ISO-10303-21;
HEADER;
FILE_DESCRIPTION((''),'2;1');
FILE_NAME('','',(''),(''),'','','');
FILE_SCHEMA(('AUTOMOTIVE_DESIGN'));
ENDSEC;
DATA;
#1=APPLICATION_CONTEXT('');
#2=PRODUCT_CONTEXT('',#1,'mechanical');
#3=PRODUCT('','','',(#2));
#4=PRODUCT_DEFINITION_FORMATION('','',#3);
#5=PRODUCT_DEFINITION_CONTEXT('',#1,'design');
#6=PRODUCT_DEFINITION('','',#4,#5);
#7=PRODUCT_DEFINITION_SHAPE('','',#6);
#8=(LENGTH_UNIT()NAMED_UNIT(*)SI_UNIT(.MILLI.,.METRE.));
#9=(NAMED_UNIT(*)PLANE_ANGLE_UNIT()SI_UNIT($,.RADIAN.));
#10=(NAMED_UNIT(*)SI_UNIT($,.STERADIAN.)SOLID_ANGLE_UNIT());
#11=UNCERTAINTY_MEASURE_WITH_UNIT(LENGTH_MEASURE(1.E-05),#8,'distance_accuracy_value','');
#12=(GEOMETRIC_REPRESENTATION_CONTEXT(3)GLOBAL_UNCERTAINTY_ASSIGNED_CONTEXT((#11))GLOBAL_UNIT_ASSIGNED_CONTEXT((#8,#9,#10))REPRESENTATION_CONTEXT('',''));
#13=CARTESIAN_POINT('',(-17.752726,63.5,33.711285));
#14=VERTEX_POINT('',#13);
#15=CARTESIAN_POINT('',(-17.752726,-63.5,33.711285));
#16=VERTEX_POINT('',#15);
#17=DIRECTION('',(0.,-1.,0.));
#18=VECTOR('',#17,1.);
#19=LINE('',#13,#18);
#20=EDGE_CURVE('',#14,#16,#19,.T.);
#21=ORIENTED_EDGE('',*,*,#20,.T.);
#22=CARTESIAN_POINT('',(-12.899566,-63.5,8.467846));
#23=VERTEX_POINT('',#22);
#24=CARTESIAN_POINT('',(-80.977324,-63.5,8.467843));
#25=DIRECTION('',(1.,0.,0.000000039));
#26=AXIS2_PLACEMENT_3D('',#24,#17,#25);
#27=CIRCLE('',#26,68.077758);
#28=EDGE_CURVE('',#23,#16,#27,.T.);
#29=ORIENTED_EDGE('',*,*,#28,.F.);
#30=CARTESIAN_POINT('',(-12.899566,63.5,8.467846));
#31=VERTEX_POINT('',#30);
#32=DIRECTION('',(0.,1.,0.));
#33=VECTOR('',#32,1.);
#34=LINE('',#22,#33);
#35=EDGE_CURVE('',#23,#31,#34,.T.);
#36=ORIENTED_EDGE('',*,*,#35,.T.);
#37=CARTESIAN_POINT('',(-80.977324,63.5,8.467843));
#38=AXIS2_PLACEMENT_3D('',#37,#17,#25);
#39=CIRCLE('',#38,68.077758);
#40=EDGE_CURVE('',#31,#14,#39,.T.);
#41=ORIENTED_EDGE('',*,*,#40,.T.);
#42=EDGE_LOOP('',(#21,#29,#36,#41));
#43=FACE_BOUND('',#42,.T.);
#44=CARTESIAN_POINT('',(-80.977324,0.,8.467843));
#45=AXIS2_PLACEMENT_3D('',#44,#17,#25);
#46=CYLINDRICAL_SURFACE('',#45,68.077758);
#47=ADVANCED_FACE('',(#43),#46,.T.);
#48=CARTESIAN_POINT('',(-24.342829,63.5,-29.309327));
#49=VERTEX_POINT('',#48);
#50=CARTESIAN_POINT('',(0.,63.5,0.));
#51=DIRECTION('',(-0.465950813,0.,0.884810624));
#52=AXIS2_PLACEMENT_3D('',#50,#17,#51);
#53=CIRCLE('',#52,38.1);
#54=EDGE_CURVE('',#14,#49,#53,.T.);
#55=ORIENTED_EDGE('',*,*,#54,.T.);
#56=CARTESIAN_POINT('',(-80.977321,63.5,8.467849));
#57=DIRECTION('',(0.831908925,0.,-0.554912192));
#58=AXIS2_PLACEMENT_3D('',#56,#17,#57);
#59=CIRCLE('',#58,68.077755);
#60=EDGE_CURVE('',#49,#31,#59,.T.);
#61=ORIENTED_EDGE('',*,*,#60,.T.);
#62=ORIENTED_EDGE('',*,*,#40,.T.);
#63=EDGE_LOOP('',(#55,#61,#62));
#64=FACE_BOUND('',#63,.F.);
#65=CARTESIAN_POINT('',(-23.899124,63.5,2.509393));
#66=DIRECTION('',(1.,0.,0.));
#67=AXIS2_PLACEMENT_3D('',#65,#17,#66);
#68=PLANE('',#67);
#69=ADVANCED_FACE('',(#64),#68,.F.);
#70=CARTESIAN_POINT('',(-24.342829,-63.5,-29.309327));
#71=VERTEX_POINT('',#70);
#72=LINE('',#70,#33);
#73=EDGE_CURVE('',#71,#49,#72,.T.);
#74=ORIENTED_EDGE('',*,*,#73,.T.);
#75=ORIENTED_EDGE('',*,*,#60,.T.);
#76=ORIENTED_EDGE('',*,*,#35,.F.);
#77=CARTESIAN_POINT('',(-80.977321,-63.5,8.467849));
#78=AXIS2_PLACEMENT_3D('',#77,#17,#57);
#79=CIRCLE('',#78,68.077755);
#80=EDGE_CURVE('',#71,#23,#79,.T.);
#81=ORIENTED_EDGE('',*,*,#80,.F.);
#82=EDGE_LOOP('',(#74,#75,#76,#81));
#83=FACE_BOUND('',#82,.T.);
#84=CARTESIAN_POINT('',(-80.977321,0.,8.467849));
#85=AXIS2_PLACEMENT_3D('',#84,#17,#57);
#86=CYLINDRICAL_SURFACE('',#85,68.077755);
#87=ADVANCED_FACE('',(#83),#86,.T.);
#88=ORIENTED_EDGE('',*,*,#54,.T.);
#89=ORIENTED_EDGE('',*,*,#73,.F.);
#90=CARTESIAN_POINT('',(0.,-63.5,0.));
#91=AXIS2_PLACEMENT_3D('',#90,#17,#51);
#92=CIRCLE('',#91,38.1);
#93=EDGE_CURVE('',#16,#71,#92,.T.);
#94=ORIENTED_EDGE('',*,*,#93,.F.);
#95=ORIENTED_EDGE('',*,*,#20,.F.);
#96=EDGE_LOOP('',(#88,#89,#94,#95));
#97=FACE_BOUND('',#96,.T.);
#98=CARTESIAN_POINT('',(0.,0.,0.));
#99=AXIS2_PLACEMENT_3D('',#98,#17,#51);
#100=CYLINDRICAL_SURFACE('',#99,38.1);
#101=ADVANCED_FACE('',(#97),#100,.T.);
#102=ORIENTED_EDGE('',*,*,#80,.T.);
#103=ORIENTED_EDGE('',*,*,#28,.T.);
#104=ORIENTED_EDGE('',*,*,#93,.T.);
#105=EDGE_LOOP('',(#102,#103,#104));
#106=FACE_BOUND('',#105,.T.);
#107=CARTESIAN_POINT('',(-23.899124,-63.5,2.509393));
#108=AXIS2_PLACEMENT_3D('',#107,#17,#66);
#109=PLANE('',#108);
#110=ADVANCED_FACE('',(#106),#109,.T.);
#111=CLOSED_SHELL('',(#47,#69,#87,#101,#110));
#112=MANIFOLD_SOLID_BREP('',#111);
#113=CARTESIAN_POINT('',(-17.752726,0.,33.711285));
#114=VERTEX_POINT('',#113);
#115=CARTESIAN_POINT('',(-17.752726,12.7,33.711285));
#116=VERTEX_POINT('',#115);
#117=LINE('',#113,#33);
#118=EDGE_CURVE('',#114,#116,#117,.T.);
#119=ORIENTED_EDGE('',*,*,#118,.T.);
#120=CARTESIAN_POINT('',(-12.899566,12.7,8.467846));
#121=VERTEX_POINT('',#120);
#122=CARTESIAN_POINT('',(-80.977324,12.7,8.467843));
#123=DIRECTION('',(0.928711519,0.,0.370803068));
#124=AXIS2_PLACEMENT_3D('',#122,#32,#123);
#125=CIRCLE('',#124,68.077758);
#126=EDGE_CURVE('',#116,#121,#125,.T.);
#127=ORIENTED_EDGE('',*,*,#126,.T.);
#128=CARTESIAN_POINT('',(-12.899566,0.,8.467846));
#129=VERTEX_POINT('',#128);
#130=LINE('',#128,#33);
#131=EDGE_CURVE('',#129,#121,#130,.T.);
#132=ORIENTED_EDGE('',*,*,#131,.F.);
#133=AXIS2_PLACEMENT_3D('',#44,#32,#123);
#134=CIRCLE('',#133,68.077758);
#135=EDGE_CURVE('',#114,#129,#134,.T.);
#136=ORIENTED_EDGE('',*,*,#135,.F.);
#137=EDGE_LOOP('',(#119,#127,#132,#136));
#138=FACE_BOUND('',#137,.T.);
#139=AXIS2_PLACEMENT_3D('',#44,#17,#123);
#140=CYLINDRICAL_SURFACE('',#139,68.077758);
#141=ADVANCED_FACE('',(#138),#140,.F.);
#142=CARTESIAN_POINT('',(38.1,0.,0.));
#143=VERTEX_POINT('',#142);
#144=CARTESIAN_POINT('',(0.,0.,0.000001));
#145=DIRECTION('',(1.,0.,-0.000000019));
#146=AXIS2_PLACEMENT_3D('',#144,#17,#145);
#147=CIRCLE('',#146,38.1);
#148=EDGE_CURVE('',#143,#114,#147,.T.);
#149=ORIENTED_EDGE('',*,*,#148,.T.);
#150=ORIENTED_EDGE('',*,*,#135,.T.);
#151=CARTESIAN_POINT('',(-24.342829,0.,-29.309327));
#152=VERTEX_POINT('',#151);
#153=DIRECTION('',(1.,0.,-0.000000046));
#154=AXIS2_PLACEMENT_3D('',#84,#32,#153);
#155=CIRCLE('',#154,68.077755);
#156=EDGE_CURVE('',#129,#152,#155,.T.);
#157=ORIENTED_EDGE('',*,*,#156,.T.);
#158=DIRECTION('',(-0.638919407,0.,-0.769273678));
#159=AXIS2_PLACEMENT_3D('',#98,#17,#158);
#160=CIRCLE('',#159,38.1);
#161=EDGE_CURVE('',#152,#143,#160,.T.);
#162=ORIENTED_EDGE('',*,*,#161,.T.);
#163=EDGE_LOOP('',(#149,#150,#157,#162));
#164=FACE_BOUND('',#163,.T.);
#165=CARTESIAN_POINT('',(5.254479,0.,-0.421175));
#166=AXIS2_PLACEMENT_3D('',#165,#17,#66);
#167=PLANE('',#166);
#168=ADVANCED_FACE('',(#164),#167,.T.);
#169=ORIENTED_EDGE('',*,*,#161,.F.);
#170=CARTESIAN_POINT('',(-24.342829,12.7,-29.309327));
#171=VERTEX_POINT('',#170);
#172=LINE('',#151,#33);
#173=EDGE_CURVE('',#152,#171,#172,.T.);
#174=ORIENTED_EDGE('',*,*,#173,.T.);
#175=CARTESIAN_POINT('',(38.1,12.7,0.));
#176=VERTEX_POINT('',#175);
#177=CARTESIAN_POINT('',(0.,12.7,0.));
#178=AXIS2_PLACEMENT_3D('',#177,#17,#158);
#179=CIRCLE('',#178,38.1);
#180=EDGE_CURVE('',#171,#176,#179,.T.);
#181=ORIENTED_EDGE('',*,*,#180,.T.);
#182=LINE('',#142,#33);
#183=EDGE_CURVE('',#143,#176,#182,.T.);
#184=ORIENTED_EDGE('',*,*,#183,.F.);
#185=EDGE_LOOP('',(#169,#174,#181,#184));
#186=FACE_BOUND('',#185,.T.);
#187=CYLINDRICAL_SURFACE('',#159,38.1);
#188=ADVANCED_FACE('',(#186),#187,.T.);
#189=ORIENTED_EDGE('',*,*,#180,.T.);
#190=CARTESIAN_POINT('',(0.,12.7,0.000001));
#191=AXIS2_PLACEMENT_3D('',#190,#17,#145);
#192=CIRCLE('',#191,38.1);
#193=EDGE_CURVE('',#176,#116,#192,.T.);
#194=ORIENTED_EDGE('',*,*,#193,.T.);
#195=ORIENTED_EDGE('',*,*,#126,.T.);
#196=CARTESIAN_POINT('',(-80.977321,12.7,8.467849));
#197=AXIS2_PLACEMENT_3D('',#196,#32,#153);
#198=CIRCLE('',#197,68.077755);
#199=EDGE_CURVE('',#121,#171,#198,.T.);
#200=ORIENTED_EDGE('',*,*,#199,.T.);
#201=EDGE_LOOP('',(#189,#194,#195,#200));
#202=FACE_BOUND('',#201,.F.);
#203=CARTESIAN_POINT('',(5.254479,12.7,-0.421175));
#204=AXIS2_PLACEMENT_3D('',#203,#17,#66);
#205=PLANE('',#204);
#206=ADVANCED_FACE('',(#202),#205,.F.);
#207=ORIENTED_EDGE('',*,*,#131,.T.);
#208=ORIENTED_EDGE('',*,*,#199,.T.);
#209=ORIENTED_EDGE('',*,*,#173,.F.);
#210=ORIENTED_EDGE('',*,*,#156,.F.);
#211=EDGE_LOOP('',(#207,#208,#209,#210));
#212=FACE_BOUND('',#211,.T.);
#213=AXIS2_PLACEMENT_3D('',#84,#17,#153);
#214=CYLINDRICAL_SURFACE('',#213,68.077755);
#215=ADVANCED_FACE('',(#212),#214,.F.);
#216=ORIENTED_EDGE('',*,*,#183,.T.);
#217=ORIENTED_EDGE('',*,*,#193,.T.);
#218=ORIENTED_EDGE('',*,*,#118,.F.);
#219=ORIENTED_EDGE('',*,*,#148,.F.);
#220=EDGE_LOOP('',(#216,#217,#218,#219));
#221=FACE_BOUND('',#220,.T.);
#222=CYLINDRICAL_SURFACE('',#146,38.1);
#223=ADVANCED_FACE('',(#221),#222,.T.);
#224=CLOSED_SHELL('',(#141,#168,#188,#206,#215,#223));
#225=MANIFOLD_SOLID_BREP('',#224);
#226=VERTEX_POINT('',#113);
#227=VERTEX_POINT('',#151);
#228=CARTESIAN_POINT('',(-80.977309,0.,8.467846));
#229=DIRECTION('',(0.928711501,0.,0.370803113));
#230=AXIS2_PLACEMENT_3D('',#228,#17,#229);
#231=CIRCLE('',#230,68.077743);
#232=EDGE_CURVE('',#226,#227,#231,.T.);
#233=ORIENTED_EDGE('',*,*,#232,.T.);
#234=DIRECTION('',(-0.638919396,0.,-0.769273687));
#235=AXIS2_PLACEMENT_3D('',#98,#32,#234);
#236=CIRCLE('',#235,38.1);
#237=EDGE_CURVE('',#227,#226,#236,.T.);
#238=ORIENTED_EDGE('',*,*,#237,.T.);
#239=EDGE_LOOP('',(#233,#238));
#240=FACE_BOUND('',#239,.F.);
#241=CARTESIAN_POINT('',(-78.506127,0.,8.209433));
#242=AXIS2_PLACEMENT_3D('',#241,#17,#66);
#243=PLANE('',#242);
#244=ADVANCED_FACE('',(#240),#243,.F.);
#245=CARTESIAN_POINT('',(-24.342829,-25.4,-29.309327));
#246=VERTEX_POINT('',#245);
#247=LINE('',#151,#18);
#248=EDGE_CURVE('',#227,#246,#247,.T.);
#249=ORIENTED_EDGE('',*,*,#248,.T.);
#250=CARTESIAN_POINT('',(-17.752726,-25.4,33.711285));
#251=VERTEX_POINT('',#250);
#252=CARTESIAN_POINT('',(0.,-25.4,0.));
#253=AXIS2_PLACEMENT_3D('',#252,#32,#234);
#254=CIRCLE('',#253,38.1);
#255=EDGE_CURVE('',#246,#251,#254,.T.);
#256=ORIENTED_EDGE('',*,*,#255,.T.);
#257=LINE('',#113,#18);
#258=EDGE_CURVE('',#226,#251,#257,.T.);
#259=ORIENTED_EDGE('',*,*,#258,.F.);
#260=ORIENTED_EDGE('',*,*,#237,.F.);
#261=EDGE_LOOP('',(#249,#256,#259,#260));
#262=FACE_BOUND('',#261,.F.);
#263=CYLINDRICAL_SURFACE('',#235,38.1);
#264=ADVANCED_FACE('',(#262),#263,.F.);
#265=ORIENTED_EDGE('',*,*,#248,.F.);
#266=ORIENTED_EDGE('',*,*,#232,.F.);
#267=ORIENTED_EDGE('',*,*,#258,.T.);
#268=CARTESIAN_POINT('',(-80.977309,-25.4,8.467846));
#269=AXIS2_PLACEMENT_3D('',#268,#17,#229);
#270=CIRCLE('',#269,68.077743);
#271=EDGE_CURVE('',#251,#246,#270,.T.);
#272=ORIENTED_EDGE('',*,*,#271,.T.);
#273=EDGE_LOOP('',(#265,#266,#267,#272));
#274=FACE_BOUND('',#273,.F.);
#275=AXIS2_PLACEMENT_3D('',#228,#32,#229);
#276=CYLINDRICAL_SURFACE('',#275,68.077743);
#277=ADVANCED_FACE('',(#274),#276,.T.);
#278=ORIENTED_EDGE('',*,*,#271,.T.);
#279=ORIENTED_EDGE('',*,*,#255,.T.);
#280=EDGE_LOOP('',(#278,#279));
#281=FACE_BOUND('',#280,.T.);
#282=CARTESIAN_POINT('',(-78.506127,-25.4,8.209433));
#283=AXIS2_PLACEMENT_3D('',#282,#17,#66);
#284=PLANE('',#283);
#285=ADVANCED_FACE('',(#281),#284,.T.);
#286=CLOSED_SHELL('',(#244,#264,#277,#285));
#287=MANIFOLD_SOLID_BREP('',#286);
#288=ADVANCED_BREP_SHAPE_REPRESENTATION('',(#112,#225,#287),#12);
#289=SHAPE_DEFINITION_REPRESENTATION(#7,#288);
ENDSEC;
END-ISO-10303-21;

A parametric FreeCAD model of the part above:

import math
import FreeCAD as App
import Part
import Sketcher
from FreeCAD import Vector
Q = App.Units.Quantity

doc = App.newDocument("Part")
body = doc.addObject("PartDesign::Body", "Body")

# Sketch on XZ plane
sketch1 = body.newObject("Sketcher::SketchObject", "Sketch")
sketch1.AttachmentSupport = (doc.getObject("XZ_Plane"), [""])
sketch1.MapMode = "FlatFace"
sketch1.addGeometry([
    Part.ArcOfCircle(Part.Circle(Vector(0, 0, 0), Vector(0, 0, 1), 38), math.radians(118), math.radians(230)),
    Part.ArcOfCircle(Part.Circle(Vector(-81, 8, 0), Vector(0, 0, 1), 68), math.radians(22), math.radians(326)),
], False)
sketch1.addConstraint([
    Sketcher.Constraint("Coincident", 0, 1, 1, 1),
    Sketcher.Constraint("Coincident", 1, 2, 0, 2),
    Sketcher.Constraint("Coincident", 0, 3, -1, 1),
    Sketcher.Constraint("Radius", 0, Q("1.5 in")),
    Sketcher.Constraint("Radius", 1, Q("68.077743 mm")),
    Sketcher.Constraint("DistanceX", 1, 3, -1, 1, Q("80.977309 mm")),
    Sketcher.Constraint("DistanceX", 1, 2, -1, 1, Q("24.342829 mm")),
])
pad1 = body.newObject("PartDesign::Pad", "Pad")
pad1.Profile = sketch1
pad1.Length = Q("1 in")
body2 = doc.addObject("PartDesign::Body", "Body001")

# Sketch on XZ plane
sketch2 = body2.newObject("Sketcher::SketchObject", "Sketch001")
sketch2.AttachmentSupport = (doc.getObject("XZ_Plane001"), [""])
sketch2.MapMode = "FlatFace"
sketch2.addGeometry([
    Part.ArcOfCircle(Part.Circle(Vector(0, 0, 0), Vector(0, 0, 1), 38), math.radians(-130), math.radians(0)),
    Part.ArcOfCircle(Part.Circle(Vector(0, 0, 0), Vector(0, 0, 1), 38), math.radians(0), math.radians(118)),
    Part.ArcOfCircle(Part.Circle(Vector(-81, 8, 0), Vector(0, 0, 1), 68), math.radians(0), math.radians(22)),
    Part.ArcOfCircle(Part.Circle(Vector(-81, 8, 0), Vector(0, 0, 1), 68), math.radians(-34), math.radians(0)),
], False)
sketch2.addConstraint([
    Sketcher.Constraint("Tangent", 0, 2, 1, 1),
    Sketcher.Constraint("Coincident", 1, 2, 2, 2),
    Sketcher.Constraint("Tangent", 2, 1, 3, 2),
    Sketcher.Constraint("Coincident", 3, 1, 0, 1),
    Sketcher.Constraint("Coincident", 0, 3, -1, 1),
    Sketcher.Constraint("Equal", 0, 1),
    Sketcher.Constraint("PointOnObject", 0, 2, -1),
    Sketcher.Constraint("Radius", 0, Q("1.5 in")),
    Sketcher.Constraint("Radius", 2, Q("68.077758 mm")),
    Sketcher.Constraint("Radius", 3, Q("68.077755 mm")),
    Sketcher.Constraint("DistanceX", 2, 3, 1, 2, Q("63.224598 mm")),
    Sketcher.Constraint("DistanceX", 3, 3, -1, 1, Q("80.977321 mm")),
    Sketcher.Constraint("DistanceY", 2, 1, 1, 2, Q("25.243439 mm")),
])
pad2 = body2.newObject("PartDesign::Pad", "Pad001")
pad2.Profile = sketch2
pad2.Length = Q("0.5 in")
pad2.Reversed = True
body3 = doc.addObject("PartDesign::Body", "Body002")

# Sketch on XZ plane
sketch3 = body3.newObject("Sketcher::SketchObject", "Sketch002")
sketch3.AttachmentSupport = (doc.getObject("XZ_Plane002"), [""])
sketch3.MapMode = "FlatFace"
sketch3.addGeometry([
    Part.ArcOfCircle(Part.Circle(Vector(-81, 8, 0), Vector(0, 0, 1), 68), math.radians(0), math.radians(22)),
    Part.ArcOfCircle(Part.Circle(Vector(0, 0, 0), Vector(0, 0, 1), 38), math.radians(118), math.radians(230)),
    Part.ArcOfCircle(Part.Circle(Vector(-81, 8, 0), Vector(0, 0, 1), 68), math.radians(-34), math.radians(0)),
], False)
sketch3.addConstraint([
    Sketcher.Constraint("Coincident", 0, 2, 1, 1),
    Sketcher.Constraint("Coincident", 1, 2, 2, 1),
    Sketcher.Constraint("Tangent", 2, 2, 0, 1),
    Sketcher.Constraint("Coincident", 1, 3, -1, 1),
    Sketcher.Constraint("Radius", 1, Q("1.5 in")),
    Sketcher.Constraint("Radius", 0, Q("68.077758 mm")),
    Sketcher.Constraint("Radius", 2, Q("68.077755 mm")),
    Sketcher.Constraint("DistanceX", 0, 3, 0, 2, Q("63.224598 mm")),
    Sketcher.Constraint("DistanceX", 2, 3, -1, 1, Q("80.977321 mm")),
    Sketcher.Constraint("DistanceY", 2, 2, 0, 2, Q("25.243439 mm")),
])
pad3 = body3.newObject("PartDesign::Pad", "Pad002")
pad3.Profile = sketch3
pad3.Type = "TwoLengths"
pad3.Length = Q("2.5 in")
pad3.Length2 = Q("2.5 in")

doc.recompute()
